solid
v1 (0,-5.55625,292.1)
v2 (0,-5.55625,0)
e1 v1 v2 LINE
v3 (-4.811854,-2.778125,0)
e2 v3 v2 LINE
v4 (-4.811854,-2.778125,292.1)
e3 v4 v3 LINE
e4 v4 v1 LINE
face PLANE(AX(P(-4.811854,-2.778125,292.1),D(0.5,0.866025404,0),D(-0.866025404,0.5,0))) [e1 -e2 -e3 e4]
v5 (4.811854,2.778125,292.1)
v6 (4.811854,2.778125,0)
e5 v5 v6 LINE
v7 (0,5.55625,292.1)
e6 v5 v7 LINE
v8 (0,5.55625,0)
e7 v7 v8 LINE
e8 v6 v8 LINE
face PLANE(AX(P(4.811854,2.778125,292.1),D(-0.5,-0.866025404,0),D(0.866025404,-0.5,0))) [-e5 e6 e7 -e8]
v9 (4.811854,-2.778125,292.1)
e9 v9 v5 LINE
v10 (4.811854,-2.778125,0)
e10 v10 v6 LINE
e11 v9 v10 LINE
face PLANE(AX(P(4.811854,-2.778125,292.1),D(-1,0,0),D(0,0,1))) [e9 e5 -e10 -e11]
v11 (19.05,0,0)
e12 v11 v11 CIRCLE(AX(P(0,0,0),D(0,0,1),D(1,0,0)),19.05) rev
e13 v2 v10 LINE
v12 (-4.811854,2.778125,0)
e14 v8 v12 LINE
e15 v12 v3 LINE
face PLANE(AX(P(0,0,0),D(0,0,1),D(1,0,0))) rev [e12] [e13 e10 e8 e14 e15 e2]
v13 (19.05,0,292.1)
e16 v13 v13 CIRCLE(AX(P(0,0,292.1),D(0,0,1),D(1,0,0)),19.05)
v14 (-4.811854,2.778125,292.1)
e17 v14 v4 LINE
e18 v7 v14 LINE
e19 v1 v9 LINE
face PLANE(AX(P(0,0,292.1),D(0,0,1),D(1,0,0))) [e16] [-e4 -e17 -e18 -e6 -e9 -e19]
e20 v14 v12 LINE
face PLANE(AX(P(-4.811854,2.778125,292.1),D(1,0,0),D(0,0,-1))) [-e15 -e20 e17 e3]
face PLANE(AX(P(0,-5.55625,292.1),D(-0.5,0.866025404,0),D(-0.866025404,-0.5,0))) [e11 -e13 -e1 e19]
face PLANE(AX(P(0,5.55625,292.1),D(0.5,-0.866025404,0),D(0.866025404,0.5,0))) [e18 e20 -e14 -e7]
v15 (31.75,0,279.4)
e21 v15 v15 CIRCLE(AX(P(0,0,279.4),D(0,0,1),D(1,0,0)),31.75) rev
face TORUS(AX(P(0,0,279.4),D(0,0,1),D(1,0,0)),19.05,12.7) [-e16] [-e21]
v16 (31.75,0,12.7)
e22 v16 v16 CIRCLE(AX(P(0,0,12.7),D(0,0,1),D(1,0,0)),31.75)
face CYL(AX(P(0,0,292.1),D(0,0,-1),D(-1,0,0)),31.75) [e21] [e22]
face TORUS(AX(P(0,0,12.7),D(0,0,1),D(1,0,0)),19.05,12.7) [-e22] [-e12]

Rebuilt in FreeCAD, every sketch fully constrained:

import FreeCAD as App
import Part
import Sketcher
from FreeCAD import Vector
Q = App.Units.Quantity


def edges_at(feature, points):
    """Names of the edges that pass closest to the given points."""
    edges = feature.Shape.Edges
    near = lambda p: min(range(len(edges)), key=lambda i: edges[i].distToShape(Part.Vertex(*p))[0])
    return sorted({f"Edge{near(p) + 1}" for p in points})

doc = App.newDocument("Part")
body = doc.addObject("PartDesign::Body", "Body")

# Sketch on XY plane
sketch1 = body.newObject("Sketcher::SketchObject", "Sketch")
sketch1.AttachmentSupport = (doc.getObject("XY_Plane"), [""])
sketch1.MapMode = "FlatFace"
sketch1.addGeometry([
    Part.Circle(Vector(0, 0, 0), Vector(0, 0, 1), 32),  # 0
    Part.LineSegment(Vector(5, -3, 0), Vector(0, -6, 0)),  # 1
    Part.LineSegment(Vector(0, -6, 0), Vector(-5, -3, 0)),  # 2
    Part.LineSegment(Vector(-5, -3, 0), Vector(-5, 3, 0)),  # 3
    Part.LineSegment(Vector(-5, 3, 0), Vector(0, 6, 0)),  # 4
    Part.LineSegment(Vector(0, 6, 0), Vector(5, 3, 0)),  # 5
    Part.LineSegment(Vector(5, 3, 0), Vector(5, -3, 0)),  # 6
], False)
sketch1.addConstraint([
    Sketcher.Constraint("Coincident", 1, 2, 2, 1),
    Sketcher.Constraint("Coincident", 2, 2, 3, 1),
    Sketcher.Constraint("Coincident", 3, 2, 4, 1),
    Sketcher.Constraint("Coincident", 4, 2, 5, 1),
    Sketcher.Constraint("Coincident", 5, 2, 6, 1),
    Sketcher.Constraint("Coincident", 6, 2, 1, 1),
    Sketcher.Constraint("Vertical", 3),
    Sketcher.Constraint("Vertical", 6),
    Sketcher.Constraint("Coincident", 0, 3, -1, 1),
    Sketcher.Constraint("Symmetric", 1, 2, 4, 2, -1, 1),
    Sketcher.Constraint("Symmetric", 2, 2, 5, 2, -1, 1),
    Sketcher.Constraint("PointOnObject", 1, 2, -2),
    Sketcher.Constraint("Parallel", 1, 4),
    Sketcher.Constraint("Horizontal", 3, 2, 5, 2),
    Sketcher.Constraint("Diameter", 0, Q("2.5 in")),
    Sketcher.Constraint("Angle", 1, Q("-150 deg")),
    Sketcher.Constraint("DistanceY", 3, 1, 3, 2, Q("0.21875 in")),
    Sketcher.Constraint("Distance", 1, Q("0.21875 in")),
])
pad1 = body.newObject("PartDesign::Pad", "Pad")
pad1.Profile = sketch1
pad1.Length = Q("11.5 in")
doc.recompute()

fillet = body.newObject("PartDesign::Fillet", "Fillet")
fillet.Base = (pad1, edges_at(pad1, [(-31.75, 0, 292.1)]))
fillet.Radius = Q("0.5 in")
doc.recompute()

fillet2 = body.newObject("PartDesign::Fillet", "Fillet001")
fillet2.Base = (fillet, edges_at(fillet, [(-31.75, 0, 0)]))
fillet2.Radius = Q("0.5 in")

doc.recompute()
